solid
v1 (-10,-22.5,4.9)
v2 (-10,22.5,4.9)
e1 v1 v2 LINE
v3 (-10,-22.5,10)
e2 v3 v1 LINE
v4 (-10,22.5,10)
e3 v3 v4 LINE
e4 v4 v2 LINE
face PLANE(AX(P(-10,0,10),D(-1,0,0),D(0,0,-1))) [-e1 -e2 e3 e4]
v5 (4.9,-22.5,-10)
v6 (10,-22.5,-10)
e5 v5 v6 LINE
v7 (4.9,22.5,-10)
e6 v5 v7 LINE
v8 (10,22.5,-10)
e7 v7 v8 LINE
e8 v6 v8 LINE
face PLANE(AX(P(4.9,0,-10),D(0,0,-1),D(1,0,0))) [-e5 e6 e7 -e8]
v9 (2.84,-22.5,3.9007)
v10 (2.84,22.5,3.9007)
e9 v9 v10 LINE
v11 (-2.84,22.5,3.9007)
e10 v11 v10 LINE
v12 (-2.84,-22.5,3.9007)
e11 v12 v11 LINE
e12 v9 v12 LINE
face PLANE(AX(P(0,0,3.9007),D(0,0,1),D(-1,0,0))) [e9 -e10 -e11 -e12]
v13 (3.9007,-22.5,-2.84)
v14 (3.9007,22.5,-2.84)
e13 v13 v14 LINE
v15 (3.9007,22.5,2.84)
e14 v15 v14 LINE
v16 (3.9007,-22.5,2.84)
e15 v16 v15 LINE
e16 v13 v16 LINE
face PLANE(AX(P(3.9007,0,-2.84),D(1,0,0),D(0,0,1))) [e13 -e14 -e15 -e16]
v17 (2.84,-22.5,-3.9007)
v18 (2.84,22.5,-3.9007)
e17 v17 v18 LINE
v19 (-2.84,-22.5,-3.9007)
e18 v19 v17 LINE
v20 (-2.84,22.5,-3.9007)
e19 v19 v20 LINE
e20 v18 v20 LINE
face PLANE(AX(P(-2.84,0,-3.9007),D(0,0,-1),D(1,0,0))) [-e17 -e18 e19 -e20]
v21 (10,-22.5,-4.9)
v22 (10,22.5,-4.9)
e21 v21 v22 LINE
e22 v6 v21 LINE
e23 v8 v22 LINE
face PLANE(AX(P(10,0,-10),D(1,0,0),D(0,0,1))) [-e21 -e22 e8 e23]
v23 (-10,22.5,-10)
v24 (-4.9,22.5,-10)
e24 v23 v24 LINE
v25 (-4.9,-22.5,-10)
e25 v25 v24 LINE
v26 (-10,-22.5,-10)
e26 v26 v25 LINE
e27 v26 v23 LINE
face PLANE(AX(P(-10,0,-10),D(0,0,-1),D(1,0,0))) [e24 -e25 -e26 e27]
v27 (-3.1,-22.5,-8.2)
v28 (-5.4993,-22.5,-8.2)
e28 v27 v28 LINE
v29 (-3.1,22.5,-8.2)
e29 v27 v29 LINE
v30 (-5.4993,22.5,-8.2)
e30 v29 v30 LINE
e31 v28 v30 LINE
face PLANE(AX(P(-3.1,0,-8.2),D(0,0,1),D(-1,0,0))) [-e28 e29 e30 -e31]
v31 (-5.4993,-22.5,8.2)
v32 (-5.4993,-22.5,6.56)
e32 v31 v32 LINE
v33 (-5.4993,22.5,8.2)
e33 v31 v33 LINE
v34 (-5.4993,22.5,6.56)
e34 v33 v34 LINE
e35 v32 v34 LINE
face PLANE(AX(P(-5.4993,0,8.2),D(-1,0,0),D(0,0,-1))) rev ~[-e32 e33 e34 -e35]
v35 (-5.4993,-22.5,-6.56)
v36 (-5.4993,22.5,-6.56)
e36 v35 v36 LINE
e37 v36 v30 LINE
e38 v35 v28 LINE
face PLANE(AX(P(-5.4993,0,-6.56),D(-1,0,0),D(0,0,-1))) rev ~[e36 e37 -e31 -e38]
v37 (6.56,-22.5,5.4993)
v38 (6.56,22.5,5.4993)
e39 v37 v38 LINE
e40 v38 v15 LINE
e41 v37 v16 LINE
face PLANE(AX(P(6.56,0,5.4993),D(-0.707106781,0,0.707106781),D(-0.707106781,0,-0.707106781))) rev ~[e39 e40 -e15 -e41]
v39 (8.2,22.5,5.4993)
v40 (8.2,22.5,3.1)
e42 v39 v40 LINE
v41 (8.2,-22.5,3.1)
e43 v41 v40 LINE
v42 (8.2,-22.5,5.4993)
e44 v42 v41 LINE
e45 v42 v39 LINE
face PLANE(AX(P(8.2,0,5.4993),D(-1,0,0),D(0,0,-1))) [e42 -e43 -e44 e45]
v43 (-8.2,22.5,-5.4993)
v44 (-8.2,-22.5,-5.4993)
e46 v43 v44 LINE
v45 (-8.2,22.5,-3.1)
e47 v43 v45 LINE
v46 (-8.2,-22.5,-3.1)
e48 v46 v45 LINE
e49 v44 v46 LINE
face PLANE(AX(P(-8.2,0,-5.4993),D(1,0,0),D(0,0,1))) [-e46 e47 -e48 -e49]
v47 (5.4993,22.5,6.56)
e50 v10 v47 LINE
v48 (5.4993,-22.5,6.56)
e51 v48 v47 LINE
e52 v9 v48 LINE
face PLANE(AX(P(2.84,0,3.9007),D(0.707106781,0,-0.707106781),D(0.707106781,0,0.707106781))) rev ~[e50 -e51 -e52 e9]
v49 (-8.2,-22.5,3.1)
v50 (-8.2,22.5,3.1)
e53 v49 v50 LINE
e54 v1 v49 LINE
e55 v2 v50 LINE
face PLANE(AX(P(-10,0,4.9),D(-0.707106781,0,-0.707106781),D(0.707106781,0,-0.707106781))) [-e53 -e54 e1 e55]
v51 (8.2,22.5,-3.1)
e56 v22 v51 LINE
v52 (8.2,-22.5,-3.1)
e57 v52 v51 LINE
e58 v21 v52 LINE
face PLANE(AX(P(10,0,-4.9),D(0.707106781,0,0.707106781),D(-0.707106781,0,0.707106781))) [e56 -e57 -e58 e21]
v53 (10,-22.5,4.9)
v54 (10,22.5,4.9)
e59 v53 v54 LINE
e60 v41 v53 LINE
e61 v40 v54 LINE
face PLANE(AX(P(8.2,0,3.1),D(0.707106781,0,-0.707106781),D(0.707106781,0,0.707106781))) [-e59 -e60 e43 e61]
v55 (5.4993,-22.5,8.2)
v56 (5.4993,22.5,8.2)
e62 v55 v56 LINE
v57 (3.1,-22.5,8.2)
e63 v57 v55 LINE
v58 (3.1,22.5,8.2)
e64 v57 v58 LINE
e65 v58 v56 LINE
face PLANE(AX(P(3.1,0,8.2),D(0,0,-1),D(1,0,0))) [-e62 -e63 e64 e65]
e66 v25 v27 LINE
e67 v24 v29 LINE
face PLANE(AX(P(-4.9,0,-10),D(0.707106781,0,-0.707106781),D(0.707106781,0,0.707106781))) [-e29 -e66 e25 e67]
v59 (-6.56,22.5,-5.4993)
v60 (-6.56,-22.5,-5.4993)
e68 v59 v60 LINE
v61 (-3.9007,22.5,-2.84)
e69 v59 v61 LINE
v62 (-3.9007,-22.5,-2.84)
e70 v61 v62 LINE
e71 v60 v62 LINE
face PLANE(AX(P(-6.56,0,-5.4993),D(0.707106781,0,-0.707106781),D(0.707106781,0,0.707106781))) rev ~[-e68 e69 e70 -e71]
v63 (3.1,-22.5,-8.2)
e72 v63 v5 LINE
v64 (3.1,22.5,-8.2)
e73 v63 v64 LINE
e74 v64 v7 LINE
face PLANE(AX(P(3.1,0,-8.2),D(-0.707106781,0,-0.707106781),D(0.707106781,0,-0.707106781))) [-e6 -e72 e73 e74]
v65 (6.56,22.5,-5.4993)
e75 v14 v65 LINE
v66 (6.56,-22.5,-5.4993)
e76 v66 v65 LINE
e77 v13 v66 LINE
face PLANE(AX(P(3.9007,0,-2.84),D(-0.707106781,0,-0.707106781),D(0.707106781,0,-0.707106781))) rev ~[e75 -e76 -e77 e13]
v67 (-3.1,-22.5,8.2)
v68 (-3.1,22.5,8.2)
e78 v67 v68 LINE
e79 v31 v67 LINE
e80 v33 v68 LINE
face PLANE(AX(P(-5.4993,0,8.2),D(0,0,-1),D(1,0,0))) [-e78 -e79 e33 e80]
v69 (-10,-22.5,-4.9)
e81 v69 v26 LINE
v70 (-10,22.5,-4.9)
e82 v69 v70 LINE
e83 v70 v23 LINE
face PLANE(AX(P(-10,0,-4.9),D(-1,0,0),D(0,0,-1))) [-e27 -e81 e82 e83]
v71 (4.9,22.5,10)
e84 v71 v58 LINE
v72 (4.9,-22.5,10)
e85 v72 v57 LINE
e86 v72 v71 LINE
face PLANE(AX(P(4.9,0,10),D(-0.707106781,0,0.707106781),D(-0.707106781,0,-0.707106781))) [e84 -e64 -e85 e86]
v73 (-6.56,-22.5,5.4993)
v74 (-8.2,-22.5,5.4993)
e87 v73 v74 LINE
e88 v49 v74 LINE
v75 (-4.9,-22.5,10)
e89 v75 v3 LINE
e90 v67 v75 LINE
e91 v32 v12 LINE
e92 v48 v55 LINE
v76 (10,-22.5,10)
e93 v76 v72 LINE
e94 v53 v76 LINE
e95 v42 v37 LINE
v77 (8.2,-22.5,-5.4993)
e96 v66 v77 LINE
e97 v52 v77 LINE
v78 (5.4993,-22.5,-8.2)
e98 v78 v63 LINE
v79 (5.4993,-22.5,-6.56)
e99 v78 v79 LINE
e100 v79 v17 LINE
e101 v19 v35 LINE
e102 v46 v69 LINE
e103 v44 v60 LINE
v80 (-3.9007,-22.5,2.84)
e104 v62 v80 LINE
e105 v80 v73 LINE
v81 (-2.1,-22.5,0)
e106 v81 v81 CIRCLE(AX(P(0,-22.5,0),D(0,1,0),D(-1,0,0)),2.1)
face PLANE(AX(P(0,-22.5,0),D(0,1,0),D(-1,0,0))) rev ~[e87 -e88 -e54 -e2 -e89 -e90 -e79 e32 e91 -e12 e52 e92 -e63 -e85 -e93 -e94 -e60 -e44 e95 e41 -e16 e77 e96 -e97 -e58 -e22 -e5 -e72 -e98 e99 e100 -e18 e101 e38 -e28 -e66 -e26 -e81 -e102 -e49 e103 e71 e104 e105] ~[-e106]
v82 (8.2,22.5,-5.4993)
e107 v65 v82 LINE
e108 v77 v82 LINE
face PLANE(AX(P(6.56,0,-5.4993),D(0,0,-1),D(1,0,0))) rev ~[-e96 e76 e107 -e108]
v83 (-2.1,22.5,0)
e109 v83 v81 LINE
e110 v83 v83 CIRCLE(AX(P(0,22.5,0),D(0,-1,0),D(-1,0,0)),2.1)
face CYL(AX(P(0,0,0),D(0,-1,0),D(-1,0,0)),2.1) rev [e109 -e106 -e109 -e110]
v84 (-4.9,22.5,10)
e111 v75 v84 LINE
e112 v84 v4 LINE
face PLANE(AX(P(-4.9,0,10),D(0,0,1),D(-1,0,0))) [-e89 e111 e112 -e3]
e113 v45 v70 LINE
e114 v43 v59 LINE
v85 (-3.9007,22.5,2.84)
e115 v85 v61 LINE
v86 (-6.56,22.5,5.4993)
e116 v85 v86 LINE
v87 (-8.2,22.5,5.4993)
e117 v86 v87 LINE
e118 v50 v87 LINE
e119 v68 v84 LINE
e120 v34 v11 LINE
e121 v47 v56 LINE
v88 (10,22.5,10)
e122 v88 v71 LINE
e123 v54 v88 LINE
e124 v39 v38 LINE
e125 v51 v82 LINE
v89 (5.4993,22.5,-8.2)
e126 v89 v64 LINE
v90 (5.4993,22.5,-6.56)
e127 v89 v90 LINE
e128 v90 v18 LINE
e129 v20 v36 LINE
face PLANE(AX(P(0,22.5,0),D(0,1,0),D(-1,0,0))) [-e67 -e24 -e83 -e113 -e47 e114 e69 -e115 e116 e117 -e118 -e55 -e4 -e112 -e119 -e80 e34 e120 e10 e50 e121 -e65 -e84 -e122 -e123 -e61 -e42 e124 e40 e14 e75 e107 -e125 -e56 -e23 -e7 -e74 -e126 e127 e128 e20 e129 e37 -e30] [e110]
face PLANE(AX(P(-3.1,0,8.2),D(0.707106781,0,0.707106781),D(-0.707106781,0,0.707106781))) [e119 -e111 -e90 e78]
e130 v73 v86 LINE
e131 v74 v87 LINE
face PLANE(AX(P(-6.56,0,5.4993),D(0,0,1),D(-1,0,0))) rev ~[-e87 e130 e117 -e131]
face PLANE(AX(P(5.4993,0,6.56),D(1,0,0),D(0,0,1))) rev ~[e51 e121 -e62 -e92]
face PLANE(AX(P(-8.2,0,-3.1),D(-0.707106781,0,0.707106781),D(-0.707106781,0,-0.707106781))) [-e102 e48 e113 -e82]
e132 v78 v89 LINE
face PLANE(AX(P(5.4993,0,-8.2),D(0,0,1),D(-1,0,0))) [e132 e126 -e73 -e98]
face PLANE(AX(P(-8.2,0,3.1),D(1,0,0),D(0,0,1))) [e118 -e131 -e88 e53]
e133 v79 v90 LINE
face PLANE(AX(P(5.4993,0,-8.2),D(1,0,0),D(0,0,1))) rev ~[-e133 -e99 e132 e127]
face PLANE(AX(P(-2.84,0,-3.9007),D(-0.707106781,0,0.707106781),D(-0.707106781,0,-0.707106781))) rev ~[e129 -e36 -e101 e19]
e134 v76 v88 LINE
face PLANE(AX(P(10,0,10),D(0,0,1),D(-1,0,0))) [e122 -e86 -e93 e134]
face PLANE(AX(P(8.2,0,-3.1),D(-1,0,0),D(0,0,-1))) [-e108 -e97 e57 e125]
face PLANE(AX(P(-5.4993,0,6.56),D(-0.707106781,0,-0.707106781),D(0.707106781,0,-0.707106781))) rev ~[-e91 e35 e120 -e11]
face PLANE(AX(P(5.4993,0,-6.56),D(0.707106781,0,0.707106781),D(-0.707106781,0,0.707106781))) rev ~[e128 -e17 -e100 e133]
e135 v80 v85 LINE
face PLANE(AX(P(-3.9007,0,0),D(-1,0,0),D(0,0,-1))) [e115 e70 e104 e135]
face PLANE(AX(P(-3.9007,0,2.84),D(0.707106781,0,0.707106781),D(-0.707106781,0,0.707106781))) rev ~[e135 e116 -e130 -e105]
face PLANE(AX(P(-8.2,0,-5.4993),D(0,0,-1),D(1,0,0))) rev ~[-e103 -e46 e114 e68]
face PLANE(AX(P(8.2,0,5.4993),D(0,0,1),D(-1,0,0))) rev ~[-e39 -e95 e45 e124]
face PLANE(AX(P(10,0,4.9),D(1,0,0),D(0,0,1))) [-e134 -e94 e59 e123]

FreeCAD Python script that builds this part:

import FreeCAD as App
import Part
import Sketcher

V = App.Vector
Q = App.Units.Quantity


def add_polygon(sketch, points):
    """Adds a closed chain of lines whose ends are joined by coincident constraints."""
    first, n = sketch.GeometryCount, len(points)
    for a, b in zip(points, points[1:] + points[:1]):
        sketch.addGeometry(Part.LineSegment(App.Vector(*a, 0), App.Vector(*b, 0)), False)
    for i in range(n):
        sketch.addConstraint(Sketcher.Constraint("Coincident", first + i, 2, first + (i + 1) % n, 1))

doc = App.newDocument("Part")
body = doc.addObject("PartDesign::Body", "Body")

# Sketch on XZ plane
sketch1 = body.newObject("Sketcher::SketchObject", "Sketch")
sketch1.AttachmentSupport = (doc.getObject("XZ_Plane"), [""])
sketch1.MapMode = "FlatFace"
add_polygon(sketch1, [(-3.9, -2.8), (-3.9, 2.8), (-6.6, 5.5), (-8.2, 5.5), (-8.2, 3.1), (-10, 4.9), (-10, 10), (-4.9, 10), (-3.1, 8.2), (-5.5, 8.2), (-5.5, 6.6), (-2.8, 3.9), (2.8, 3.9), (5.5, 6.6), (5.5, 8.2), (3.1, 8.2), (4.9, 10), (10, 10), (10, 4.9), (8.2, 3.1), (8.2, 5.5), (6.6, 5.5), (3.9, 2.8), (3.9, -2.8), (6.6, -5.5), (8.2, -5.5), (8.2, -3.1), (10, -4.9), (10, -10), (4.9, -10), (3.1, -8.2), (5.5, -8.2), (5.5, -6.6), (2.8, -3.9), (-2.8, -3.9), (-5.5, -6.6), (-5.5, -8.2), (-3.1, -8.2), (-4.9, -10), (-10, -10), (-10, -4.9), (-8.2, -3.1), (-8.2, -5.5), (-6.6, -5.5)])  # lines 0-43
sketch1.addGeometry(Part.Circle(V(0, 0, 0), V(0, 0, 1), 2.1), False)  # 44
sketch1.addConstraint([
    Sketcher.Constraint("Vertical", 0),
    Sketcher.Constraint("Horizontal", 2),
    Sketcher.Constraint("Vertical", 3),
    Sketcher.Constraint("Vertical", 5),
    Sketcher.Constraint("Horizontal", 6),
    Sketcher.Constraint("Horizontal", 8),
    Sketcher.Constraint("Vertical", 9),
    Sketcher.Constraint("Horizontal", 11),
    Sketcher.Constraint("Vertical", 13),
    Sketcher.Constraint("Horizontal", 14),
    Sketcher.Constraint("Horizontal", 16),
    Sketcher.Constraint("Vertical", 17),
    Sketcher.Constraint("Vertical", 19),
    Sketcher.Constraint("Horizontal", 20),
    Sketcher.Constraint("Vertical", 22),
    Sketcher.Constraint("Horizontal", 24),
    Sketcher.Constraint("Vertical", 25),
    Sketcher.Constraint("Vertical", 27),
    Sketcher.Constraint("Horizontal", 28),
    Sketcher.Constraint("Horizontal", 30),
    Sketcher.Constraint("Vertical", 31),
    Sketcher.Constraint("Horizontal", 33),
    Sketcher.Constraint("Vertical", 35),
    Sketcher.Constraint("Horizontal", 36),
    Sketcher.Constraint("Horizontal", 38),
    Sketcher.Constraint("Vertical", 39),
    Sketcher.Constraint("Vertical", 41),
    Sketcher.Constraint("Horizontal", 42),
    Sketcher.Constraint("Coincident", 44, 3, -1, 1),
    Sketcher.Constraint("Symmetric", 0, 2, 22, 2, -1, 1),
    Sketcher.Constraint("Symmetric", 1, 2, 23, 2, -1, 1),
    Sketcher.Constraint("Symmetric", 3, 2, 25, 2, -1, 1),
    Sketcher.Constraint("Symmetric", 4, 2, 26, 2, -1, 1),
    Sketcher.Constraint("Symmetric", 6, 2, 28, 2, -1, 1),
    Sketcher.Constraint("Symmetric", 7, 2, 29, 2, -1, 1),
    Sketcher.Constraint("Symmetric", 9, 2, 31, 2, -1, 1),
    Sketcher.Constraint("Symmetric", 10, 2, 32, 2, -1, 1),
    Sketcher.Constraint("Symmetric", 12, 2, 34, 2, -1, 1),
    Sketcher.Constraint("Symmetric", 14, 2, 36, 2, -1, 1),
    Sketcher.Constraint("Symmetric", 15, 2, 37, 2, -1, 1),
    Sketcher.Constraint("Symmetric", 17, 2, 39, 2, -1, 1),
    Sketcher.Constraint("Symmetric", 18, 2, 40, 2, -1, 1),
    Sketcher.Constraint("Symmetric", 20, 2, 42, 2, -1, 1),
    Sketcher.Constraint("Symmetric", 9, 2, 12, 2, -2),
    Sketcher.Constraint("Symmetric", 7, 2, 14, 2, -2),
    Sketcher.Constraint("Symmetric", 6, 2, 15, 2, -2),
    Sketcher.Constraint("Symmetric", 4, 2, 17, 2, -2),
    Sketcher.Constraint("Symmetric", 3, 2, 18, 2, -2),
    Sketcher.Constraint("Symmetric", 1, 2, 20, 2, -2),
    Sketcher.Constraint("Parallel", 1, 4),
    Sketcher.Constraint("Parallel", 4, 7),
    Sketcher.Constraint("Parallel", 7, 10),
    Sketcher.Constraint("Perpendicular", 10, 12),
    Sketcher.Constraint("Parallel", 12, 15),
    Sketcher.Constraint("Parallel", 18, 21),
    Sketcher.Constraint("Perpendicular", 32, 34),
    Sketcher.Constraint("Parallel", 40, 43),
    Sketcher.Constraint("Equal", 33, 0),
    Sketcher.Constraint("Equal", 36, 3),
    Sketcher.Constraint("Equal", 38, 5),
    Sketcher.Constraint("Equal", 42, 9),
    Sketcher.Constraint("Equal", 4, 7),
    Sketcher.Constraint("Equal", 1, 10),
    Sketcher.Constraint("Diameter", 44, Q("4.2 mm")),
    Sketcher.Constraint("DistanceX", 4, 2, -1, 1, Q("10 mm")),
    Sketcher.Constraint("DistanceX", 2, 2, 2, 1, Q("1.64 mm")),
    Sketcher.Constraint("DistanceY", -1, 1, 3, 2, Q("3.1 mm")),
    Sketcher.Constraint("DistanceX", 4, 2, 2, 2, Q("1.8 mm")),
    Sketcher.Constraint("DistanceY", -1, 1, 0, 2, Q("2.84 mm")),
    Sketcher.Constraint("DistanceX", 8, 2, 8, 1, Q("2.3993 mm")),
])
pad1 = body.newObject("PartDesign::Pad", "Pad")
pad1.Profile = sketch1
pad1.Length = 45
pad1.Midplane = True

doc.recompute()
